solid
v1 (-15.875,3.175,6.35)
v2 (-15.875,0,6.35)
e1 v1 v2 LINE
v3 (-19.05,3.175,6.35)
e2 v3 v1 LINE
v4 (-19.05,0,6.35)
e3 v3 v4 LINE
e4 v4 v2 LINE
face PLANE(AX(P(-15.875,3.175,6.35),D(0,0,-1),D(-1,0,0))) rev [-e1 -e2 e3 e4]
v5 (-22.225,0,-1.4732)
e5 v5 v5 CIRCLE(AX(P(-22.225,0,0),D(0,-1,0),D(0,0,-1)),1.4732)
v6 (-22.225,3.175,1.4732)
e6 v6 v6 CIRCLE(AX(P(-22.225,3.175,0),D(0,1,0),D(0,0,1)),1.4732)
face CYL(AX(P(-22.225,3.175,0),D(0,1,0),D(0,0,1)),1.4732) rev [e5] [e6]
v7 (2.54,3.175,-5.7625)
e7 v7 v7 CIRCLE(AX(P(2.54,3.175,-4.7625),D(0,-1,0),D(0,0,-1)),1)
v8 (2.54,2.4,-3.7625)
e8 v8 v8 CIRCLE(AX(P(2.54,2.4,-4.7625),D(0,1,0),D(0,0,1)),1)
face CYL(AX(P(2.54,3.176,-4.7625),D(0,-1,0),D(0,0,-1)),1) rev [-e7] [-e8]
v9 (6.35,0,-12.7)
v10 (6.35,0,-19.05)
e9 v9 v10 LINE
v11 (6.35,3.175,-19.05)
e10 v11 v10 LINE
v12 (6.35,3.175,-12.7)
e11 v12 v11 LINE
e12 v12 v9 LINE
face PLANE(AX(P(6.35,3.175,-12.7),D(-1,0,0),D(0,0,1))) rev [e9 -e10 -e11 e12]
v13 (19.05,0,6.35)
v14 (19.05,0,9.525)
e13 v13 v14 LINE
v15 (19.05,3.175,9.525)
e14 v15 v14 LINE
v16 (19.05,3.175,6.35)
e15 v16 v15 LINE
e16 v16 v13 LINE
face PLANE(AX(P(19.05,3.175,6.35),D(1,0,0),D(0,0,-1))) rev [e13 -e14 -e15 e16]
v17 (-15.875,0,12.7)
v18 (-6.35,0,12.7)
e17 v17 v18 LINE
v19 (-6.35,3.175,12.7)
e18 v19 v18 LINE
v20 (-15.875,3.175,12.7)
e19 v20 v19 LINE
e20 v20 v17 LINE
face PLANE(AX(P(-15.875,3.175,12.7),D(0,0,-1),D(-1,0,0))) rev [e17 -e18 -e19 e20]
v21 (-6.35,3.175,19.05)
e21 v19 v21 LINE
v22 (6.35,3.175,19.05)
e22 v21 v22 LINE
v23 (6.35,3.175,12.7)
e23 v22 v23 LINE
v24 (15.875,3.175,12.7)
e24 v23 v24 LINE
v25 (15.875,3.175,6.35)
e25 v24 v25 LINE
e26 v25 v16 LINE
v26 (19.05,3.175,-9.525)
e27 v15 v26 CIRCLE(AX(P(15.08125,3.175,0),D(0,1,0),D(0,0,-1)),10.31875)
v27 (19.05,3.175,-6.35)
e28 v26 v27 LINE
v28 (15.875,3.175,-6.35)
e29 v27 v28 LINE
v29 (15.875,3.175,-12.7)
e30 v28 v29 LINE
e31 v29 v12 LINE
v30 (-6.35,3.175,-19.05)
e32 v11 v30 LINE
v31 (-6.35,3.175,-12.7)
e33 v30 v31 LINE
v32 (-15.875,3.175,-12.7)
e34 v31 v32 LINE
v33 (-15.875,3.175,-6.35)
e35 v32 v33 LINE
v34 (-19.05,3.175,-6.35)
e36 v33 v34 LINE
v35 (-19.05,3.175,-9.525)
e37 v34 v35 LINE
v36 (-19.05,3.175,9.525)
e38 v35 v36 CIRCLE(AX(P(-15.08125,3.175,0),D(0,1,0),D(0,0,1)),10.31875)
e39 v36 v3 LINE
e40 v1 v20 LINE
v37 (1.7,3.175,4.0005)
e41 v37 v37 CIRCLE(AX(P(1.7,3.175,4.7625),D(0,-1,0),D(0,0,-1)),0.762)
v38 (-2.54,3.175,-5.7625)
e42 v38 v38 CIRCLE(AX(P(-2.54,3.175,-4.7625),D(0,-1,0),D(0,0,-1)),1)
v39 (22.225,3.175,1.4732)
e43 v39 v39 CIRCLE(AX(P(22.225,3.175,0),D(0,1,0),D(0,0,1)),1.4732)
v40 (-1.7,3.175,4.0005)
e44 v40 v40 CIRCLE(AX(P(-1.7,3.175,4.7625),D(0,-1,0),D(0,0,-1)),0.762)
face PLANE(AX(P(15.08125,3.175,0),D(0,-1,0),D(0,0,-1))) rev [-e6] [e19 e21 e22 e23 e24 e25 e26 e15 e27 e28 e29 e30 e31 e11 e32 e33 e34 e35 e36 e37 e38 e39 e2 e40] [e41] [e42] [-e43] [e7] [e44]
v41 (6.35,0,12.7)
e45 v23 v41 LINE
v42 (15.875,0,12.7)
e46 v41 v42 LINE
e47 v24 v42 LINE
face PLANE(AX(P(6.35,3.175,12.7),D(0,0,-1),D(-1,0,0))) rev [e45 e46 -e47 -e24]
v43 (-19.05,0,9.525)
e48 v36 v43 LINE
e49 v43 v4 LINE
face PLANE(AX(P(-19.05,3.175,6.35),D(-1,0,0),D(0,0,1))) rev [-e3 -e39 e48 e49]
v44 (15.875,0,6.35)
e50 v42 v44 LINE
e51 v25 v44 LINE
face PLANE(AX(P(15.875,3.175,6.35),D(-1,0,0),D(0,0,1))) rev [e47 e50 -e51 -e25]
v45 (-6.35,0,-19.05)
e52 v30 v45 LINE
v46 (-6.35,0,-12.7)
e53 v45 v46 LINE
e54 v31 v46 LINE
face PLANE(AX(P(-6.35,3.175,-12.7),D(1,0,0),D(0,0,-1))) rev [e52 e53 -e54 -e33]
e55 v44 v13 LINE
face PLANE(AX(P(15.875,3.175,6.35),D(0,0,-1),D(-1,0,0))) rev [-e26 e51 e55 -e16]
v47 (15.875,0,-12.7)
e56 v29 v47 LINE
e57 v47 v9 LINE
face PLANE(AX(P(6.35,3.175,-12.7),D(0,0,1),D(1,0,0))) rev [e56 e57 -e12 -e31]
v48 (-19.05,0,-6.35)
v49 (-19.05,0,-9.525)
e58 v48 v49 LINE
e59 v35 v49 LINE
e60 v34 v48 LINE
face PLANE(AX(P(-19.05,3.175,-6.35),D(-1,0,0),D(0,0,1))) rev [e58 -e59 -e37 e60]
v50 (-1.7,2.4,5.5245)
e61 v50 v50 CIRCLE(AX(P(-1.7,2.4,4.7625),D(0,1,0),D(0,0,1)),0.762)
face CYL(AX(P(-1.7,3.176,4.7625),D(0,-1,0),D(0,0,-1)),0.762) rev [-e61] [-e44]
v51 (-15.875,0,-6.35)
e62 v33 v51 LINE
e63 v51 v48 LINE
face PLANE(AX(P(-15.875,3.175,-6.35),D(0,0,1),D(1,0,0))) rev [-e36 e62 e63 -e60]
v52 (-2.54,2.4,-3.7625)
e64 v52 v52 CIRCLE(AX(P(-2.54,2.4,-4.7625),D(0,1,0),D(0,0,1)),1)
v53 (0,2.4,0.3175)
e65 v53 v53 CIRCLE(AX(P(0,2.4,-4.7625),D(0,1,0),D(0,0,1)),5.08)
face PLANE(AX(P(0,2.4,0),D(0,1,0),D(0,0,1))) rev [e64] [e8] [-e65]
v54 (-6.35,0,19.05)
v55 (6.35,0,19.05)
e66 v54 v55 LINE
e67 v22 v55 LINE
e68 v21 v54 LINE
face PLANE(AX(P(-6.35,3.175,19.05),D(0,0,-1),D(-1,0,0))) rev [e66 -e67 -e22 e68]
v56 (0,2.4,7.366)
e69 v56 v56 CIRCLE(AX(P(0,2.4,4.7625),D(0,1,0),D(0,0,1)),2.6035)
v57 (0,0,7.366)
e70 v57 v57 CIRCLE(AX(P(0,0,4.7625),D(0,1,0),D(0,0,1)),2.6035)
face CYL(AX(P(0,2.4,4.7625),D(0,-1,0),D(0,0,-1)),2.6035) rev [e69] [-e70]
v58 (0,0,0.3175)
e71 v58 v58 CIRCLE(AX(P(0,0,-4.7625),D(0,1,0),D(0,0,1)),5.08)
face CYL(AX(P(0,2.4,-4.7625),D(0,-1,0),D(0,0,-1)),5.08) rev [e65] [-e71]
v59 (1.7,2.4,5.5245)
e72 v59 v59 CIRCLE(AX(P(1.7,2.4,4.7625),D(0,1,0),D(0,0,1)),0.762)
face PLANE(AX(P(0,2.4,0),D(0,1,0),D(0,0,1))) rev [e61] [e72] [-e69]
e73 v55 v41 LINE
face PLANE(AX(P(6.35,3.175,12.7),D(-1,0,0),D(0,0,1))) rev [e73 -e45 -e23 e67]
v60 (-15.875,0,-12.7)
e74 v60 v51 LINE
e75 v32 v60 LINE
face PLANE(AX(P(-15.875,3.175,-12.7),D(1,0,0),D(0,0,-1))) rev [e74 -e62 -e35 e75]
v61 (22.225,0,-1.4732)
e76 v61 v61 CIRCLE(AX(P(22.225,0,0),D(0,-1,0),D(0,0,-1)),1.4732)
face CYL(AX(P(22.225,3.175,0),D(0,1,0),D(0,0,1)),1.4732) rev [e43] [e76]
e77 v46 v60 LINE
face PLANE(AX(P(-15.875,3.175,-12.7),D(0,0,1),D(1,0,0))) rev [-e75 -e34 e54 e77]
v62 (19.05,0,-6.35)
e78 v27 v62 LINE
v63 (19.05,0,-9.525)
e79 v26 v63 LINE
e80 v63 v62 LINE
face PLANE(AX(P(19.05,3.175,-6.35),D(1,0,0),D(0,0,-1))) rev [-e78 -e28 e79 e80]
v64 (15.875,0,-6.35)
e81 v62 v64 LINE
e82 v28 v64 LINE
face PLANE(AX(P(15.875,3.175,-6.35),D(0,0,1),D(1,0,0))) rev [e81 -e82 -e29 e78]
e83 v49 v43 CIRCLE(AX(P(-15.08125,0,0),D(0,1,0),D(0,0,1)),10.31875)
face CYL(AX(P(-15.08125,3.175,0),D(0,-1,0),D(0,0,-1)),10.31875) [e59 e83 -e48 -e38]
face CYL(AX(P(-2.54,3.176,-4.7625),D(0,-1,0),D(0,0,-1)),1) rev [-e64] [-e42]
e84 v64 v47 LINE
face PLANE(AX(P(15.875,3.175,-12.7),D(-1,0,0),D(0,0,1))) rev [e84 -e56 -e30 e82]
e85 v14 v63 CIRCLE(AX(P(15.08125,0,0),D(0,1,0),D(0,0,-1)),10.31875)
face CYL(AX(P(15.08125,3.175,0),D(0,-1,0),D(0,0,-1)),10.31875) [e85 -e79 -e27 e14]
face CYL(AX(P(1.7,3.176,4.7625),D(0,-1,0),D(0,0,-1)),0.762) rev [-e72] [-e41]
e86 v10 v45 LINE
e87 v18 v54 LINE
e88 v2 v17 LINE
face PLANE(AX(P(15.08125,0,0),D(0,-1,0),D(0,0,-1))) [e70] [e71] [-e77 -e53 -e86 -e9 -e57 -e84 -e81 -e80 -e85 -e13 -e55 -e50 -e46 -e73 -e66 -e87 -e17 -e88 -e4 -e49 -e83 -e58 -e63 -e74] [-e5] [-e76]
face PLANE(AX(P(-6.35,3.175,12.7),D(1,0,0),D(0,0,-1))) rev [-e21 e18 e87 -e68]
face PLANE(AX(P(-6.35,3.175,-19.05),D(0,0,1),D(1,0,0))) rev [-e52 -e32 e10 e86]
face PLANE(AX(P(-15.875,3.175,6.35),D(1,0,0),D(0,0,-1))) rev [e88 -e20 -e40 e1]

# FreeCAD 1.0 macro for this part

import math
import FreeCAD as App
import Part
import Sketcher

V = App.Vector
Q = App.Units.Quantity

doc = App.newDocument("Part")
body = doc.addObject("PartDesign::Body", "Body")

sketch1 = body.newObject("Sketcher::SketchObject", "Sketch")
sketch1.AttachmentSupport = (doc.getObject("XZ_Plane"), [""])
sketch1.MapMode = "FlatFace"
sketch1.addGeometry([
    Part.LineSegment(V(-6.35, -12.7, 0), V(-15.875, -12.7, 0)),
    Part.LineSegment(V(-15.875, -12.7, 0), V(-15.875, -6.35, 0)),
    Part.LineSegment(V(-15.875, -6.35, 0), V(-19.05, -6.35, 0)),
    Part.LineSegment(V(-19.05, -6.35, 0), V(-19.05, -9.525, 0)),
    Part.ArcOfCircle(Part.Circle(V(-15.08125, 0, 0), V(0, 0, 1), 10.31875), math.radians(112.619865), math.radians(247.380135)),
    Part.LineSegment(V(-19.05, 9.525, 0), V(-19.05, 6.35, 0)),
    Part.LineSegment(V(-19.05, 6.35, 0), V(-15.875, 6.35, 0)),
    Part.LineSegment(V(-15.875, 6.35, 0), V(-15.875, 12.7, 0)),
    Part.LineSegment(V(-15.875, 12.7, 0), V(-6.35, 12.7, 0)),
    Part.LineSegment(V(-6.35, 12.7, 0), V(-6.35, 19.05, 0)),
    Part.LineSegment(V(-6.35, 19.05, 0), V(6.35, 19.05, 0)),
    Part.LineSegment(V(6.35, 19.05, 0), V(6.35, 12.7, 0)),
    Part.LineSegment(V(6.35, 12.7, 0), V(15.875, 12.7, 0)),
    Part.LineSegment(V(15.875, 12.7, 0), V(15.875, 6.35, 0)),
    Part.LineSegment(V(15.875, 6.35, 0), V(19.05, 6.35, 0)),
    Part.LineSegment(V(19.05, 6.35, 0), V(19.05, 9.525, 0)),
    Part.ArcOfCircle(Part.Circle(V(15.08125, 0, 0), V(0, 0, 1), 10.31875), math.radians(-67.380135), math.radians(67.380135)),
    Part.LineSegment(V(19.05, -9.525, 0), V(19.05, -6.35, 0)),
    Part.LineSegment(V(19.05, -6.35, 0), V(15.875, -6.35, 0)),
    Part.LineSegment(V(15.875, -6.35, 0), V(15.875, -12.7, 0)),
    Part.LineSegment(V(15.875, -12.7, 0), V(6.35, -12.7, 0)),
    Part.LineSegment(V(6.35, -12.7, 0), V(6.35, -19.05, 0)),
    Part.LineSegment(V(6.35, -19.05, 0), V(-6.35, -19.05, 0)),
    Part.LineSegment(V(-6.35, -19.05, 0), V(-6.35, -12.7, 0)),
], False)
sketch1.addConstraint([
    Sketcher.Constraint("Coincident", 0, 2, 1, 1),
    Sketcher.Constraint("Coincident", 1, 2, 2, 1),
    Sketcher.Constraint("Coincident", 2, 2, 3, 1),
    Sketcher.Constraint("Coincident", 3, 2, 4, 2),
    Sketcher.Constraint("Coincident", 4, 1, 5, 1),
    Sketcher.Constraint("Coincident", 5, 2, 6, 1),
    Sketcher.Constraint("Coincident", 6, 2, 7, 1),
    Sketcher.Constraint("Coincident", 7, 2, 8, 1),
    Sketcher.Constraint("Coincident", 8, 2, 9, 1),
    Sketcher.Constraint("Coincident", 9, 2, 10, 1),
    Sketcher.Constraint("Coincident", 10, 2, 11, 1),
    Sketcher.Constraint("Coincident", 11, 2, 12, 1),
    Sketcher.Constraint("Coincident", 12, 2, 13, 1),
    Sketcher.Constraint("Coincident", 13, 2, 14, 1),
    Sketcher.Constraint("Coincident", 14, 2, 15, 1),
    Sketcher.Constraint("Coincident", 15, 2, 16, 2),
    Sketcher.Constraint("Coincident", 16, 1, 17, 1),
    Sketcher.Constraint("Coincident", 17, 2, 18, 1),
    Sketcher.Constraint("Coincident", 18, 2, 19, 1),
    Sketcher.Constraint("Coincident", 19, 2, 20, 1),
    Sketcher.Constraint("Coincident", 20, 2, 21, 1),
    Sketcher.Constraint("Coincident", 21, 2, 22, 1),
    Sketcher.Constraint("Coincident", 22, 2, 23, 1),
    Sketcher.Constraint("Coincident", 23, 2, 0, 1),
    Sketcher.Constraint("Horizontal", 0),
    Sketcher.Constraint("Vertical", 1),
    Sketcher.Constraint("Horizontal", 2),
    Sketcher.Constraint("Vertical", 3),
    Sketcher.Constraint("Vertical", 5),
    Sketcher.Constraint("Horizontal", 6),
    Sketcher.Constraint("Vertical", 7),
    Sketcher.Constraint("Horizontal", 8),
    Sketcher.Constraint("Vertical", 9),
    Sketcher.Constraint("Horizontal", 10),
    Sketcher.Constraint("Vertical", 11),
    Sketcher.Constraint("Horizontal", 12),
    Sketcher.Constraint("Vertical", 13),
    Sketcher.Constraint("Horizontal", 14),
    Sketcher.Constraint("Vertical", 15),
    Sketcher.Constraint("Vertical", 17),
    Sketcher.Constraint("Horizontal", 18),
    Sketcher.Constraint("Vertical", 19),
    Sketcher.Constraint("Horizontal", 20),
    Sketcher.Constraint("Vertical", 21),
    Sketcher.Constraint("Horizontal", 22),
    Sketcher.Constraint("Vertical", 23),
    Sketcher.Constraint("Equal", 4, 16),
    Sketcher.Constraint("Symmetric", 4, 3, 16, 3, -1, 1),
    Sketcher.Constraint("Symmetric", 0, 2, 12, 2, -1, 1),
    Sketcher.Constraint("Symmetric", 2, 2, 14, 2, -1, 1),
    Sketcher.Constraint("Symmetric", 5, 2, 17, 2, -1, 1),
    Sketcher.Constraint("Symmetric", 7, 2, 19, 2, -1, 1),
    Sketcher.Constraint("Symmetric", 9, 2, 21, 2, -1, 1),
    Sketcher.Constraint("Symmetric", 8, 2, 11, 2, -2),
    Sketcher.Constraint("Symmetric", 6, 2, 13, 2, -2),
    Sketcher.Constraint("Symmetric", 4, 1, 15, 2, -2),
    Sketcher.Constraint("Vertical", 9, 2, 22, 2),
    Sketcher.Constraint("Equal", 18, 3),
    Sketcher.Constraint("Equal", 7, 9),
    Sketcher.Constraint("DistanceX", 10, 1, 10, 2, Q("0.5 in")),
    Sketcher.Constraint("Radius", 4, Q("0.40625 in")),
    Sketcher.Constraint("DistanceY", 1, 1, 1, 2, Q("0.25 in")),
    Sketcher.Constraint("DistanceY", 0, 2, -1, 1, Q("0.5 in")),
    Sketcher.Constraint("DistanceX", 4, 1, 8, 2, Q("0.5 in")),
    Sketcher.Constraint("DistanceX", 0, 2, 0, 1, Q("0.375 in")),
])
pad1 = body.newObject("PartDesign::Pad", "Pad")
pad1.Profile = sketch1
pad1.Length = Q("0.125 in")
pad1.Reversed = True

sketch2 = body.newObject("Sketcher::SketchObject", "Sketch001")
sketch2.AttachmentSupport = (doc.getObject("XZ_Plane"), [""])
sketch2.MapMode = "FlatFace"
sketch2.AttachmentOffset = App.Placement(V(0, 0, -0.125 * 25.4), App.Rotation())
sketch2.addGeometry([
    Part.Circle(V(22.225, 0, 0), V(0, 0, 1), 1.4732),
    Part.Circle(V(-22.225, 0, 0), V(0, 0, 1), 1.4732),
], False)
sketch2.addConstraint([
    Sketcher.Constraint("Equal", 0, 1),
    Sketcher.Constraint("Symmetric", 0, 3, 1, 3, -1, 1),
    Sketcher.Constraint("PointOnObject", 0, 3, -1),
    Sketcher.Constraint("Diameter", 0, Q("0.116 in")),
    Sketcher.Constraint("DistanceX", 1, 3, 0, 3, Q("1.75 in")),
])
doc.recompute()
hole = body.newObject("PartDesign::Hole", "Hole")
hole.Profile = sketch2
hole.ThreadType = "None"
hole.Diameter = Q("0.116 in")
hole.DepthType = "Dimension"
hole.Depth = Q("0.25 in")
hole.DrillPoint = "Angled"
hole.DrillPointAngle = 118
hole.Reversed = True

sketch3 = body.newObject("Sketcher::SketchObject", "Sketch002")
sketch3.AttachmentSupport = (doc.getObject("XZ_Plane"), [""])
sketch3.MapMode = "FlatFace"
sketch3.addGeometry(Part.Circle(V(-1.7, 4.7625, 0), V(0, 0, 1), 0.762), False)
sketch3.addConstraint([
    Sketcher.Constraint("Diameter", 0, Q("0.06 in")),
    Sketcher.Constraint("DistanceY", -1, 1, 0, 3, Q("0.1875 in")),
    Sketcher.Constraint("DistanceX", 0, 3, -1, 1, Q("1.7 mm")),
])
pocket1 = body.newObject("PartDesign::Pocket", "Pocket")
pocket1.Profile = sketch3
pocket1.Type = "UpToFirst"

sketch4 = body.newObject("Sketcher::SketchObject", "Sketch003")
sketch4.AttachmentSupport = (doc.getObject("XZ_Plane"), [""])
sketch4.MapMode = "FlatFace"
sketch4.addGeometry(Part.Circle(V(1.7, 4.7625, 0), V(0, 0, 1), 0.762), False)
sketch4.addConstraint([
    Sketcher.Constraint("Diameter", 0, Q("0.06 in")),
    Sketcher.Constraint("DistanceY", -1, 1, 0, 3, Q("0.1875 in")),
    Sketcher.Constraint("DistanceX", -1, 1, 0, 3, Q("1.7 mm")),
])
pocket2 = body.newObject("PartDesign::Pocket", "Pocket001")
pocket2.Profile = sketch4
pocket2.Type = "UpToFirst"

sketch5 = body.newObject("Sketcher::SketchObject", "Sketch004")
sketch5.AttachmentSupport = (doc.getObject("XZ_Plane"), [""])
sketch5.MapMode = "FlatFace"
sketch5.addGeometry(Part.Circle(V(2.54, -4.7625, 0), V(0, 0, 1), 1), False)
sketch5.addConstraint([
    Sketcher.Constraint("DistanceX", -1, 1, 0, 3, Q("0.1 in")),
    Sketcher.Constraint("Diameter", 0, Q("2 mm")),
    Sketcher.Constraint("DistanceY", 0, 3, -1, 1, Q("0.1875 in")),
])
pocket3 = body.newObject("PartDesign::Pocket", "Pocket002")
pocket3.Profile = sketch5
pocket3.Type = "UpToFirst"

sketch6 = body.newObject("Sketcher::SketchObject", "Sketch005")
sketch6.AttachmentSupport = (doc.getObject("XZ_Plane"), [""])
sketch6.MapMode = "FlatFace"
sketch6.addGeometry(Part.Circle(V(-2.54, -4.7625, 0), V(0, 0, 1), 1), False)
sketch6.addConstraint([
    Sketcher.Constraint("DistanceX", 0, 3, -1, 1, Q("0.1 in")),
    Sketcher.Constraint("Diameter", 0, Q("2 mm")),
    Sketcher.Constraint("DistanceY", 0, 3, -1, 1, Q("0.1875 in")),
])
pocket4 = body.newObject("PartDesign::Pocket", "Pocket003")
pocket4.Profile = sketch6
pocket4.Type = "UpToFirst"

sketch7 = body.newObject("Sketcher::SketchObject", "Sketch006")
sketch7.AttachmentSupport = (doc.getObject("XZ_Plane"), [""])
sketch7.MapMode = "FlatFace"
sketch7.addGeometry([
    Part.Circle(V(0, 4.7625, 0), V(0, 0, 1), 2.6035),
    Part.Circle(V(-1.7, 4.7625, 0), V(0, 0, 1), 0.762),
    Part.Circle(V(0, -4.7625, 0), V(0, 0, 1), 5.08),
    Part.Circle(V(-2.54, -4.7625, 0), V(0, 0, 1), 1),
    Part.Circle(V(2.54, -4.7625, 0), V(0, 0, 1), 1),
], False)
sketch7.addConstraint([
    Sketcher.Constraint("Equal", 3, 4),
    Sketcher.Constraint("Symmetric", 0, 3, 2, 3, -1, 1),
    Sketcher.Constraint("Symmetric", 3, 3, 4, 3, -2),
    Sketcher.Constraint("PointOnObject", 0, 3, -2),
    Sketcher.Constraint("Horizontal", 0, 3, 1, 3),
    Sketcher.Constraint("Horizontal", 2, 3, 3, 3),
    Sketcher.Constraint("Diameter", 2, Q("0.4 in")),
    Sketcher.Constraint("Diameter", 1, Q("0.06 in")),
    Sketcher.Constraint("Diameter", 0, Q("0.205 in")),
    Sketcher.Constraint("DistanceX", 3, 3, -1, 1, Q("0.1 in")),
    Sketcher.Constraint("Diameter", 3, Q("2 mm")),
    Sketcher.Constraint("DistanceY", -1, 1, 0, 3, Q("0.1875 in")),
    Sketcher.Constraint("DistanceX", 1, 3, -1, 1, Q("1.7 mm")),
])
pocket5 = body.newObject("PartDesign::Pocket", "Pocket004")
pocket5.Profile = sketch7
pocket5.Length = 2.4

doc.recompute()
